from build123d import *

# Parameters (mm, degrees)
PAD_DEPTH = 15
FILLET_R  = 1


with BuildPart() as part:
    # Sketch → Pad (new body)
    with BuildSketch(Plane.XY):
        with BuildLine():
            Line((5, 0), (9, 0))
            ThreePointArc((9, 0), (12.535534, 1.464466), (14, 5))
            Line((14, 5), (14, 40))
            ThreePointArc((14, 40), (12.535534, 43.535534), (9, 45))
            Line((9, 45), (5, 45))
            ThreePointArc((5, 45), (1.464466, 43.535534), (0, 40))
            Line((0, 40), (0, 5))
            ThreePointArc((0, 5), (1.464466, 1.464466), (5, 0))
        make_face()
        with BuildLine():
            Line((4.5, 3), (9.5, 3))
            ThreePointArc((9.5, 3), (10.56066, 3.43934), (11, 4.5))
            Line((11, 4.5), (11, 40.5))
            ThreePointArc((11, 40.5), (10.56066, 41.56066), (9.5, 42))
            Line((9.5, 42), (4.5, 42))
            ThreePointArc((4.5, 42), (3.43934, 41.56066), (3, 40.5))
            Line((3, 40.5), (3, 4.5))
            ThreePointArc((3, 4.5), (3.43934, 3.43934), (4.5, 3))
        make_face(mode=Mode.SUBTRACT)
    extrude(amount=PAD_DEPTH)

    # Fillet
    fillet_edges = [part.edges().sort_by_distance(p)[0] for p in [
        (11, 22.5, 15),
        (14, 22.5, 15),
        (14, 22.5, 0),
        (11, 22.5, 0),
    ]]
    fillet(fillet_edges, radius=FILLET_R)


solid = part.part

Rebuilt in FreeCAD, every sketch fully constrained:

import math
import FreeCAD as App
import Part
import Sketcher

V = App.Vector


def edges_at(feature, points):
    """Names of the edges that pass closest to the given points."""
    edges = feature.Shape.Edges
    near = lambda p: min(range(len(edges)), key=lambda i: edges[i].distToShape(Part.Vertex(*p))[0])
    return sorted({f"Edge{near(p) + 1}" for p in points})

doc = App.newDocument("Part")
body = doc.addObject("PartDesign::Body", "Body")

sketch1 = doc.addObject("Sketcher::SketchObject", "Sketch")
body.addObject(sketch1)
sketch1.AttachmentSupport = (doc.XY_Plane, [""])
sketch1.MapMode = "FlatFace"
sketch1.addGeometry([
    Part.LineSegment(V(5, 0, 0), V(9, 0, 0)),
    Part.ArcOfCircle(Part.Circle(V(9, 5, 0), V(0, 0, 1), 5), math.radians(-90), math.radians(0)),
    Part.LineSegment(V(14, 5, 0), V(14, 40, 0)),
    Part.ArcOfCircle(Part.Circle(V(9, 40, 0), V(0, 0, 1), 5), math.radians(0), math.radians(90)),
    Part.LineSegment(V(9, 45, 0), V(5, 45, 0)),
    Part.ArcOfCircle(Part.Circle(V(5, 40, 0), V(0, 0, 1), 5), math.radians(90), math.radians(180)),
    Part.LineSegment(V(0, 40, 0), V(0, 5, 0)),
    Part.ArcOfCircle(Part.Circle(V(5, 5, 0), V(0, 0, 1), 5), math.radians(180), math.radians(270)),
    Part.LineSegment(V(9.5, 3, 0), V(4.5, 3, 0)),
    Part.ArcOfCircle(Part.Circle(V(4.5, 4.5, 0), V(0, 0, 1), 1.5), math.radians(-180), math.radians(-90)),
    Part.LineSegment(V(3, 4.5, 0), V(3, 40.5, 0)),
    Part.ArcOfCircle(Part.Circle(V(4.5, 40.5, 0), V(0, 0, 1), 1.5), math.radians(90), math.radians(180)),
    Part.LineSegment(V(4.5, 42, 0), V(9.5, 42, 0)),
    Part.ArcOfCircle(Part.Circle(V(9.5, 40.5, 0), V(0, 0, 1), 1.5), math.radians(0), math.radians(90)),
    Part.LineSegment(V(11, 40.5, 0), V(11, 4.5, 0)),
    Part.ArcOfCircle(Part.Circle(V(9.5, 4.5, 0), V(0, 0, 1), 1.5), math.radians(-90), math.radians(0)),
], False)
sketch1.addConstraint([
    Sketcher.Constraint("Tangent", 0, 2, 1, 1),
    Sketcher.Constraint("Tangent", 1, 2, 2, 1),
    Sketcher.Constraint("Tangent", 2, 2, 3, 1),
    Sketcher.Constraint("Tangent", 3, 2, 4, 1),
    Sketcher.Constraint("Tangent", 4, 2, 5, 1),
    Sketcher.Constraint("Tangent", 5, 2, 6, 1),
    Sketcher.Constraint("Tangent", 6, 2, 7, 1),
    Sketcher.Constraint("Tangent", 7, 2, 0, 1),
    Sketcher.Constraint("Tangent", 8, 2, 9, 2),
    Sketcher.Constraint("Tangent", 9, 1, 10, 1),
    Sketcher.Constraint("Tangent", 10, 2, 11, 2),
    Sketcher.Constraint("Tangent", 11, 1, 12, 1),
    Sketcher.Constraint("Tangent", 12, 2, 13, 2),
    Sketcher.Constraint("Tangent", 13, 1, 14, 1),
    Sketcher.Constraint("Tangent", 14, 2, 15, 2),
    Sketcher.Constraint("Tangent", 15, 1, 8, 1),
    Sketcher.Constraint("Horizontal", 0),
    Sketcher.Constraint("Vertical", 2),
    Sketcher.Constraint("Horizontal", 4),
    Sketcher.Constraint("Vertical", 6),
    Sketcher.Constraint("Horizontal", 8),
    Sketcher.Constraint("Vertical", 10),
    Sketcher.Constraint("Horizontal", 12),
    Sketcher.Constraint("Vertical", 14),
    Sketcher.Constraint("Equal", 1, 3),
    Sketcher.Constraint("Equal", 3, 5),
    Sketcher.Constraint("Equal", 5, 7),
    Sketcher.Constraint("Equal", 9, 11),
    Sketcher.Constraint("Equal", 11, 13),
    Sketcher.Constraint("Equal", 13, 15),
    Sketcher.Constraint("PointOnObject", 0, 2, -1),
    Sketcher.Constraint("PointOnObject", 5, 2, -2),
    Sketcher.Constraint("Radius", 1, 5.0),
    Sketcher.Constraint("Radius", 9, 1.500001),
    Sketcher.Constraint("DistanceX", 0, 1, 0, 2, 4.0),
    Sketcher.Constraint("DistanceX", 8, 2, 8, 1, 5.0),
    Sketcher.Constraint("DistanceY", 2, 1, 2, 2, 35.0),
    Sketcher.Constraint("DistanceY", 10, 1, 10, 2, 36.0),
    Sketcher.Constraint("DistanceY", -1, 1, 8, 2, 3.0),
    Sketcher.Constraint("DistanceX", -1, 1, 9, 1, 3.0),
])
pad1 = doc.addObject("PartDesign::Pad", "Pad")
body.addObject(pad1)
pad1.Profile = sketch1
pad1.Length = 15
doc.recompute()

fillet = doc.addObject("PartDesign::Fillet", "Fillet")
body.addObject(fillet)
fillet.Base = (pad1, edges_at(pad1, [
    (11, 22.5, 15),
    (14, 22.5, 15),
    (14, 22.5, 0),
    (11, 22.5, 0),
]))
fillet.Radius = 1

doc.recompute()
